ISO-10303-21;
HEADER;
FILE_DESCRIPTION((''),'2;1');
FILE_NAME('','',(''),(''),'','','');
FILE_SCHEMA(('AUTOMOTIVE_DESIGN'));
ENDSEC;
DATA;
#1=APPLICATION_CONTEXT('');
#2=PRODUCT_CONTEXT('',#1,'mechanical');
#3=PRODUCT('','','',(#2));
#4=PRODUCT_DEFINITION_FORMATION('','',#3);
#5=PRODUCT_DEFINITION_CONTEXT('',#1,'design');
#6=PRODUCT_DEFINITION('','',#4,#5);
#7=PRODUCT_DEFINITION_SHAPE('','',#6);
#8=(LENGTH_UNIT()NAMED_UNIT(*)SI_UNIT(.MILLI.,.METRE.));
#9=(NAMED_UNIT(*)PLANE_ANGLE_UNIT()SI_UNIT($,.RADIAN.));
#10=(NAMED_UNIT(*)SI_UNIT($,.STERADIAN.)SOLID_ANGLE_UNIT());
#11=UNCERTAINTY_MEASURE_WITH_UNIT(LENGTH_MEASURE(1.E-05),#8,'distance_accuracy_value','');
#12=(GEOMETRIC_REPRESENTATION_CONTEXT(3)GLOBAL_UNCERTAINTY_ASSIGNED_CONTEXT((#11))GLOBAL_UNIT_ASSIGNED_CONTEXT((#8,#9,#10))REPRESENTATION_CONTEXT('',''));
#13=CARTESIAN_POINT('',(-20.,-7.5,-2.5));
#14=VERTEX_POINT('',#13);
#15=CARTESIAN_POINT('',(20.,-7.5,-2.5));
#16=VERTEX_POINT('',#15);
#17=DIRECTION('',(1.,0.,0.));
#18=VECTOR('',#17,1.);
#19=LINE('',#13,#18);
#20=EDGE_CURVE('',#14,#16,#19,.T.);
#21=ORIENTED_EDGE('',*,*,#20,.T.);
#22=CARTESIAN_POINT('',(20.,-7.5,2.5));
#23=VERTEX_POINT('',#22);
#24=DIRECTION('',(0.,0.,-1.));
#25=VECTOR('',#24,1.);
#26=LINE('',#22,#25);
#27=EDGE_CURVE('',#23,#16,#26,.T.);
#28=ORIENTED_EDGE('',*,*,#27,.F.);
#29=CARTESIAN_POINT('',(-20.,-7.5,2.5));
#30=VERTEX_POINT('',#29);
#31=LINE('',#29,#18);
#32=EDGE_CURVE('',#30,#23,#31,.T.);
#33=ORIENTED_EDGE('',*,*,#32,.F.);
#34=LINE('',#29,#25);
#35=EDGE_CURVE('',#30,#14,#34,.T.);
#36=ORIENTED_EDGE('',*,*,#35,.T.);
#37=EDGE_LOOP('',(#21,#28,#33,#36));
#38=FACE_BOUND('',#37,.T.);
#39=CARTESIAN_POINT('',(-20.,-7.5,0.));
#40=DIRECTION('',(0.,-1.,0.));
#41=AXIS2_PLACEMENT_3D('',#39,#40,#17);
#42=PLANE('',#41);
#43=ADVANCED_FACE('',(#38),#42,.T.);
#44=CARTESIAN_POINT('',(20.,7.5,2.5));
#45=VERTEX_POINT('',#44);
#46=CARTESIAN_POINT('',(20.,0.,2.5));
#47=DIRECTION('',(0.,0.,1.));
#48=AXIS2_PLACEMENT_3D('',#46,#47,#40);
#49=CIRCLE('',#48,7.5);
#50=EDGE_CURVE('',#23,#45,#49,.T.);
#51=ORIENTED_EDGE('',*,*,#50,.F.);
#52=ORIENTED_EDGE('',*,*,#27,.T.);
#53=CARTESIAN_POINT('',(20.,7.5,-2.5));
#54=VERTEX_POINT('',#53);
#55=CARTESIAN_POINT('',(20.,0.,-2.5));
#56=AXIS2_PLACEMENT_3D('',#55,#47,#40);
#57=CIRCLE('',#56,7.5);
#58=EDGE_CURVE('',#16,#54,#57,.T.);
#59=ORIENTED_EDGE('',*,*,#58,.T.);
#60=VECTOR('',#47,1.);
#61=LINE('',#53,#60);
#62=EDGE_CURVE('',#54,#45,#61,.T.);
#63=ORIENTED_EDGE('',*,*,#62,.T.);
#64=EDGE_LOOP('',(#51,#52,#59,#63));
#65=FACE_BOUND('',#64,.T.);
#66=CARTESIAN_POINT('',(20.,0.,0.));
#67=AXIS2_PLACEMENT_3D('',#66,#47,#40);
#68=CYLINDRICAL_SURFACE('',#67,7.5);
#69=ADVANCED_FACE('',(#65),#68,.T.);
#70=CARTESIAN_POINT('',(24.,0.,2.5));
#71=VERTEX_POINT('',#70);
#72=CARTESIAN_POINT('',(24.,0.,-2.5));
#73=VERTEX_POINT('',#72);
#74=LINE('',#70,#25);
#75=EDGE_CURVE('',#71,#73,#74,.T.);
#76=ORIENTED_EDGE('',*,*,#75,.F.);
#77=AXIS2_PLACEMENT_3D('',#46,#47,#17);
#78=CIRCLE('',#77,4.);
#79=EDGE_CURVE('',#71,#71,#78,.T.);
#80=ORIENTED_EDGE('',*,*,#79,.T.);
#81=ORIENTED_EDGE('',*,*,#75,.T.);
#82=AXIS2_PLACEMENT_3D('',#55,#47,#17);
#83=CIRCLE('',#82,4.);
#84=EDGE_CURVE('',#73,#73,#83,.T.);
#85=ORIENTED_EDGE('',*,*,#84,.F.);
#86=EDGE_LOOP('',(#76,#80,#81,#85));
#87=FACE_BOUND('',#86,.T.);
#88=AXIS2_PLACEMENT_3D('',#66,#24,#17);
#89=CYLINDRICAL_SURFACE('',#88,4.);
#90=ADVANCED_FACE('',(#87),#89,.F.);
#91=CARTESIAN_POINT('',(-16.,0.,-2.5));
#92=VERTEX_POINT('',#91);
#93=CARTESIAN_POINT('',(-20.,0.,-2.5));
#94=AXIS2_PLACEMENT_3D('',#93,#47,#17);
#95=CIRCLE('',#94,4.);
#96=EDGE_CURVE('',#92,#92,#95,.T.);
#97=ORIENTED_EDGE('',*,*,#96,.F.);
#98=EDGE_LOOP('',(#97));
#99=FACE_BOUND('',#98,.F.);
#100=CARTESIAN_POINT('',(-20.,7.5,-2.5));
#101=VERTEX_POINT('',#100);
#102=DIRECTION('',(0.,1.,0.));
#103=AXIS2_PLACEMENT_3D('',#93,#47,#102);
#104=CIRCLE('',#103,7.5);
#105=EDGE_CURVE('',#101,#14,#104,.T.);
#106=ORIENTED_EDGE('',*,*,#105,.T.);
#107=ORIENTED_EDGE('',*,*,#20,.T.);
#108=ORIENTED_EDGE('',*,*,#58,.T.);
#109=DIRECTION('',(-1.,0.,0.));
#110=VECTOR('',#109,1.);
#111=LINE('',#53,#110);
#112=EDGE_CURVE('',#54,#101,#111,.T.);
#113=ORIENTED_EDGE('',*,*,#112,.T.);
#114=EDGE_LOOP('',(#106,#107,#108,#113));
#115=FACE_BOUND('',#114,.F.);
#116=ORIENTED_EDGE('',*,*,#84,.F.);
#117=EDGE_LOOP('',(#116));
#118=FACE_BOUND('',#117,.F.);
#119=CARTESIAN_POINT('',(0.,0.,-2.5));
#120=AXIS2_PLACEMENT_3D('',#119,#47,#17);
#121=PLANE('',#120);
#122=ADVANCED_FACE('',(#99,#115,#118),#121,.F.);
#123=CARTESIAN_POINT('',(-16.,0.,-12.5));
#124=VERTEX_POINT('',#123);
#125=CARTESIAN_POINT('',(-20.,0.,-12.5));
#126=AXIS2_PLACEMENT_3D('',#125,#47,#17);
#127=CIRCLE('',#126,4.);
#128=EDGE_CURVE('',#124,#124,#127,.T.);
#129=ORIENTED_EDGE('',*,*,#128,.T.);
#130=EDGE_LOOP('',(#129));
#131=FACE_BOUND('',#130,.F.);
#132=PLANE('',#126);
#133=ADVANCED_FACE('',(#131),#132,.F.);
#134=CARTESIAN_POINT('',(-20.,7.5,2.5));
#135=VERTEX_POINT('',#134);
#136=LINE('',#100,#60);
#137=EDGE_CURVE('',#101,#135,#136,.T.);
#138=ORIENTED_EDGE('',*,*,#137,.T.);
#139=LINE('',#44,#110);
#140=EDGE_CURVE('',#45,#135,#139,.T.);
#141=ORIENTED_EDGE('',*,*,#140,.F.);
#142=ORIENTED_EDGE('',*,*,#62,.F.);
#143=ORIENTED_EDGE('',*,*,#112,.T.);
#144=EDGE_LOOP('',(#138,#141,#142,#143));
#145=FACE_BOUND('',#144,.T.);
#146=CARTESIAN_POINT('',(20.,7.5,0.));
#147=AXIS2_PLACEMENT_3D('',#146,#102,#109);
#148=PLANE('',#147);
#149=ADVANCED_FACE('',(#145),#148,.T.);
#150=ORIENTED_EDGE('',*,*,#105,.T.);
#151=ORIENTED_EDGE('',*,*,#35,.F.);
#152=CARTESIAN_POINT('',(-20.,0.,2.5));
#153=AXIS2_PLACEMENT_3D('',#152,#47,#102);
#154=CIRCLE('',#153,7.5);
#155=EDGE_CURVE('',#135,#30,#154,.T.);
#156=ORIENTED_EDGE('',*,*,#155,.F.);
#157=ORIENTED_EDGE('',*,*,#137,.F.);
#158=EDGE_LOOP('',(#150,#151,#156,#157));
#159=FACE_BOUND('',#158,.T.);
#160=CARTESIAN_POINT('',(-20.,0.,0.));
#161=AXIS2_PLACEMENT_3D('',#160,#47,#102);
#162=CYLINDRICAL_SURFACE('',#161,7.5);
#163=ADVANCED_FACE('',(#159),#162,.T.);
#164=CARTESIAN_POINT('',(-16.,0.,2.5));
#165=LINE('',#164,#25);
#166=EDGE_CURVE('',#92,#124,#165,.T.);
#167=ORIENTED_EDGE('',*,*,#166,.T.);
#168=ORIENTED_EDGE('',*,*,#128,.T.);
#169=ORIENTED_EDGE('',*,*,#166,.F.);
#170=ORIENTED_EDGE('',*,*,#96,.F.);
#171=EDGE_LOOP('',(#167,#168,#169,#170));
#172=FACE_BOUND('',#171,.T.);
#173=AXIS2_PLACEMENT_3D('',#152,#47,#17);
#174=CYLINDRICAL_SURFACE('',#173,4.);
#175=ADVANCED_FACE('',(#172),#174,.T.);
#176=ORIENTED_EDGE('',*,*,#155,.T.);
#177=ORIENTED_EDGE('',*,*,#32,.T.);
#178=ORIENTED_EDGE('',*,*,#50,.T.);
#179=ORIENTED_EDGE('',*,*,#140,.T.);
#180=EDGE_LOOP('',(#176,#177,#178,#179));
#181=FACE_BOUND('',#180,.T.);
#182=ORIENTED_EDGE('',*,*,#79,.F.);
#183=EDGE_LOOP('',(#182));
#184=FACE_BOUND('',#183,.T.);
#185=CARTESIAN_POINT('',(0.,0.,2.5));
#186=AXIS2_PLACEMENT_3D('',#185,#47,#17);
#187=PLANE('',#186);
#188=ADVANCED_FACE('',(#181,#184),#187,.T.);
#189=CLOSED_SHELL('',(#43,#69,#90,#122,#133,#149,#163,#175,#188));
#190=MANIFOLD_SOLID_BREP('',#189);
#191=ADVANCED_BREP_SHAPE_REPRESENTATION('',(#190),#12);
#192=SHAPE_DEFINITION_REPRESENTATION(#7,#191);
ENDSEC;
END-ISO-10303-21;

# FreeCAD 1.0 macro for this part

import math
import FreeCAD as App
import Part
import Sketcher

V = App.Vector

doc = App.newDocument("Part")
params = doc.addObject("Spreadsheet::Sheet", "Params")
for row, (alias, value) in enumerate([
    ("sketch1_diameter", "8 mm"),
    ("sketch1_radius", "7.5 mm"),
    ("sketch1_width", "40 mm"),
    ("pad1_length", "5 mm"),
    ("sketch2_diameter", "8 mm"),
    ("pad2_length", "15 mm"),
], start=1):
    params.set(f"A{row}", alias)
    params.set(f"B{row}", "=" + value)
    params.setAlias(f"B{row}", alias)

body = doc.addObject("PartDesign::Body", "Body")

sketch1 = body.newObject("Sketcher::SketchObject", "Sketch")
sketch1.AttachmentSupport = (doc.getObject("XY_Plane"), [""])
sketch1.MapMode = "FlatFace"
sketch1.addGeometry(Part.ArcOfCircle(Part.Circle(V(20, 0, 0), V(0, 0, 1), 7.5), math.radians(-90), math.radians(90)), False)
sketch1.addGeometry(Part.LineSegment(V(20, 7.5, 0), V(-20, 7.5, 0)), False)
sketch1.addGeometry(Part.ArcOfCircle(Part.Circle(V(-20, 0, 0), V(0, 0, 1), 7.5), math.radians(90), math.radians(270)), False)
sketch1.addGeometry(Part.LineSegment(V(-20, -7.5, 0), V(20, -7.5, 0)), False)
sketch1.addGeometry(Part.Circle(V(-20, 0, 0), V(0, 0, 1), 4), False)
sketch1.addGeometry(Part.Circle(V(20, 0, 0), V(0, 0, 1), 4), False)
sketch1.addConstraint(Sketcher.Constraint("Tangent", 0, 2, 1, 1))
sketch1.addConstraint(Sketcher.Constraint("Tangent", 1, 2, 2, 1))
sketch1.addConstraint(Sketcher.Constraint("Tangent", 2, 2, 3, 1))
sketch1.addConstraint(Sketcher.Constraint("Tangent", 3, 2, 0, 1))
sketch1.addConstraint(Sketcher.Constraint("Horizontal", 1))
sketch1.addConstraint(Sketcher.Constraint("Horizontal", 3))
sketch1.addConstraint(Sketcher.Constraint("Coincident", 4, 3, 2, 3))
sketch1.addConstraint(Sketcher.Constraint("Coincident", 5, 3, 0, 3))
sketch1.addConstraint(Sketcher.Constraint("Equal", 4, 5))
sketch1.addConstraint(Sketcher.Constraint("Symmetric", 0, 3, 2, 3, -1, 1))
sketch1.addConstraint(Sketcher.Constraint("Diameter", 4, 8.0))
sketch1.addConstraint(Sketcher.Constraint("Radius", 0, 7.5))
sketch1.addConstraint(Sketcher.Constraint("DistanceX", 1, 2, 1, 1, 40.0))
sketch1.setExpression("Constraints[10]", "Params.sketch1_diameter")
sketch1.setExpression("Constraints[11]", "Params.sketch1_radius")
sketch1.setExpression("Constraints[12]", "Params.sketch1_width")
pad1 = body.newObject("PartDesign::Pad", "Pad")
pad1.Profile = sketch1
pad1.setExpression("Length", "Params.pad1_length")
pad1.Midplane = True

sketch2 = body.newObject("Sketcher::SketchObject", "Sketch001")
sketch2.AttachmentSupport = (doc.getObject("XY_Plane"), [""])
sketch2.MapMode = "FlatFace"
sketch2.AttachmentOffset = App.Placement(V(0, 0, 2.5), App.Rotation())
sketch2.addGeometry(Part.Circle(V(-20, 0, 0), V(0, 0, 1), 4), False)
sketch2.addConstraint(Sketcher.Constraint("PointOnObject", 0, 3, -1))
sketch2.addConstraint(Sketcher.Constraint("Diameter", 0, 8.0))
sketch2.addConstraint(Sketcher.Constraint("DistanceX", 0, 3, -1, 1, 20.0))
sketch2.setExpression("Constraints[1]", "Params.sketch2_diameter")
pad2 = body.newObject("PartDesign::Pad", "Pad001")
pad2.Profile = sketch2
pad2.setExpression("Length", "Params.pad2_length")
pad2.Reversed = True

doc.recompute()
